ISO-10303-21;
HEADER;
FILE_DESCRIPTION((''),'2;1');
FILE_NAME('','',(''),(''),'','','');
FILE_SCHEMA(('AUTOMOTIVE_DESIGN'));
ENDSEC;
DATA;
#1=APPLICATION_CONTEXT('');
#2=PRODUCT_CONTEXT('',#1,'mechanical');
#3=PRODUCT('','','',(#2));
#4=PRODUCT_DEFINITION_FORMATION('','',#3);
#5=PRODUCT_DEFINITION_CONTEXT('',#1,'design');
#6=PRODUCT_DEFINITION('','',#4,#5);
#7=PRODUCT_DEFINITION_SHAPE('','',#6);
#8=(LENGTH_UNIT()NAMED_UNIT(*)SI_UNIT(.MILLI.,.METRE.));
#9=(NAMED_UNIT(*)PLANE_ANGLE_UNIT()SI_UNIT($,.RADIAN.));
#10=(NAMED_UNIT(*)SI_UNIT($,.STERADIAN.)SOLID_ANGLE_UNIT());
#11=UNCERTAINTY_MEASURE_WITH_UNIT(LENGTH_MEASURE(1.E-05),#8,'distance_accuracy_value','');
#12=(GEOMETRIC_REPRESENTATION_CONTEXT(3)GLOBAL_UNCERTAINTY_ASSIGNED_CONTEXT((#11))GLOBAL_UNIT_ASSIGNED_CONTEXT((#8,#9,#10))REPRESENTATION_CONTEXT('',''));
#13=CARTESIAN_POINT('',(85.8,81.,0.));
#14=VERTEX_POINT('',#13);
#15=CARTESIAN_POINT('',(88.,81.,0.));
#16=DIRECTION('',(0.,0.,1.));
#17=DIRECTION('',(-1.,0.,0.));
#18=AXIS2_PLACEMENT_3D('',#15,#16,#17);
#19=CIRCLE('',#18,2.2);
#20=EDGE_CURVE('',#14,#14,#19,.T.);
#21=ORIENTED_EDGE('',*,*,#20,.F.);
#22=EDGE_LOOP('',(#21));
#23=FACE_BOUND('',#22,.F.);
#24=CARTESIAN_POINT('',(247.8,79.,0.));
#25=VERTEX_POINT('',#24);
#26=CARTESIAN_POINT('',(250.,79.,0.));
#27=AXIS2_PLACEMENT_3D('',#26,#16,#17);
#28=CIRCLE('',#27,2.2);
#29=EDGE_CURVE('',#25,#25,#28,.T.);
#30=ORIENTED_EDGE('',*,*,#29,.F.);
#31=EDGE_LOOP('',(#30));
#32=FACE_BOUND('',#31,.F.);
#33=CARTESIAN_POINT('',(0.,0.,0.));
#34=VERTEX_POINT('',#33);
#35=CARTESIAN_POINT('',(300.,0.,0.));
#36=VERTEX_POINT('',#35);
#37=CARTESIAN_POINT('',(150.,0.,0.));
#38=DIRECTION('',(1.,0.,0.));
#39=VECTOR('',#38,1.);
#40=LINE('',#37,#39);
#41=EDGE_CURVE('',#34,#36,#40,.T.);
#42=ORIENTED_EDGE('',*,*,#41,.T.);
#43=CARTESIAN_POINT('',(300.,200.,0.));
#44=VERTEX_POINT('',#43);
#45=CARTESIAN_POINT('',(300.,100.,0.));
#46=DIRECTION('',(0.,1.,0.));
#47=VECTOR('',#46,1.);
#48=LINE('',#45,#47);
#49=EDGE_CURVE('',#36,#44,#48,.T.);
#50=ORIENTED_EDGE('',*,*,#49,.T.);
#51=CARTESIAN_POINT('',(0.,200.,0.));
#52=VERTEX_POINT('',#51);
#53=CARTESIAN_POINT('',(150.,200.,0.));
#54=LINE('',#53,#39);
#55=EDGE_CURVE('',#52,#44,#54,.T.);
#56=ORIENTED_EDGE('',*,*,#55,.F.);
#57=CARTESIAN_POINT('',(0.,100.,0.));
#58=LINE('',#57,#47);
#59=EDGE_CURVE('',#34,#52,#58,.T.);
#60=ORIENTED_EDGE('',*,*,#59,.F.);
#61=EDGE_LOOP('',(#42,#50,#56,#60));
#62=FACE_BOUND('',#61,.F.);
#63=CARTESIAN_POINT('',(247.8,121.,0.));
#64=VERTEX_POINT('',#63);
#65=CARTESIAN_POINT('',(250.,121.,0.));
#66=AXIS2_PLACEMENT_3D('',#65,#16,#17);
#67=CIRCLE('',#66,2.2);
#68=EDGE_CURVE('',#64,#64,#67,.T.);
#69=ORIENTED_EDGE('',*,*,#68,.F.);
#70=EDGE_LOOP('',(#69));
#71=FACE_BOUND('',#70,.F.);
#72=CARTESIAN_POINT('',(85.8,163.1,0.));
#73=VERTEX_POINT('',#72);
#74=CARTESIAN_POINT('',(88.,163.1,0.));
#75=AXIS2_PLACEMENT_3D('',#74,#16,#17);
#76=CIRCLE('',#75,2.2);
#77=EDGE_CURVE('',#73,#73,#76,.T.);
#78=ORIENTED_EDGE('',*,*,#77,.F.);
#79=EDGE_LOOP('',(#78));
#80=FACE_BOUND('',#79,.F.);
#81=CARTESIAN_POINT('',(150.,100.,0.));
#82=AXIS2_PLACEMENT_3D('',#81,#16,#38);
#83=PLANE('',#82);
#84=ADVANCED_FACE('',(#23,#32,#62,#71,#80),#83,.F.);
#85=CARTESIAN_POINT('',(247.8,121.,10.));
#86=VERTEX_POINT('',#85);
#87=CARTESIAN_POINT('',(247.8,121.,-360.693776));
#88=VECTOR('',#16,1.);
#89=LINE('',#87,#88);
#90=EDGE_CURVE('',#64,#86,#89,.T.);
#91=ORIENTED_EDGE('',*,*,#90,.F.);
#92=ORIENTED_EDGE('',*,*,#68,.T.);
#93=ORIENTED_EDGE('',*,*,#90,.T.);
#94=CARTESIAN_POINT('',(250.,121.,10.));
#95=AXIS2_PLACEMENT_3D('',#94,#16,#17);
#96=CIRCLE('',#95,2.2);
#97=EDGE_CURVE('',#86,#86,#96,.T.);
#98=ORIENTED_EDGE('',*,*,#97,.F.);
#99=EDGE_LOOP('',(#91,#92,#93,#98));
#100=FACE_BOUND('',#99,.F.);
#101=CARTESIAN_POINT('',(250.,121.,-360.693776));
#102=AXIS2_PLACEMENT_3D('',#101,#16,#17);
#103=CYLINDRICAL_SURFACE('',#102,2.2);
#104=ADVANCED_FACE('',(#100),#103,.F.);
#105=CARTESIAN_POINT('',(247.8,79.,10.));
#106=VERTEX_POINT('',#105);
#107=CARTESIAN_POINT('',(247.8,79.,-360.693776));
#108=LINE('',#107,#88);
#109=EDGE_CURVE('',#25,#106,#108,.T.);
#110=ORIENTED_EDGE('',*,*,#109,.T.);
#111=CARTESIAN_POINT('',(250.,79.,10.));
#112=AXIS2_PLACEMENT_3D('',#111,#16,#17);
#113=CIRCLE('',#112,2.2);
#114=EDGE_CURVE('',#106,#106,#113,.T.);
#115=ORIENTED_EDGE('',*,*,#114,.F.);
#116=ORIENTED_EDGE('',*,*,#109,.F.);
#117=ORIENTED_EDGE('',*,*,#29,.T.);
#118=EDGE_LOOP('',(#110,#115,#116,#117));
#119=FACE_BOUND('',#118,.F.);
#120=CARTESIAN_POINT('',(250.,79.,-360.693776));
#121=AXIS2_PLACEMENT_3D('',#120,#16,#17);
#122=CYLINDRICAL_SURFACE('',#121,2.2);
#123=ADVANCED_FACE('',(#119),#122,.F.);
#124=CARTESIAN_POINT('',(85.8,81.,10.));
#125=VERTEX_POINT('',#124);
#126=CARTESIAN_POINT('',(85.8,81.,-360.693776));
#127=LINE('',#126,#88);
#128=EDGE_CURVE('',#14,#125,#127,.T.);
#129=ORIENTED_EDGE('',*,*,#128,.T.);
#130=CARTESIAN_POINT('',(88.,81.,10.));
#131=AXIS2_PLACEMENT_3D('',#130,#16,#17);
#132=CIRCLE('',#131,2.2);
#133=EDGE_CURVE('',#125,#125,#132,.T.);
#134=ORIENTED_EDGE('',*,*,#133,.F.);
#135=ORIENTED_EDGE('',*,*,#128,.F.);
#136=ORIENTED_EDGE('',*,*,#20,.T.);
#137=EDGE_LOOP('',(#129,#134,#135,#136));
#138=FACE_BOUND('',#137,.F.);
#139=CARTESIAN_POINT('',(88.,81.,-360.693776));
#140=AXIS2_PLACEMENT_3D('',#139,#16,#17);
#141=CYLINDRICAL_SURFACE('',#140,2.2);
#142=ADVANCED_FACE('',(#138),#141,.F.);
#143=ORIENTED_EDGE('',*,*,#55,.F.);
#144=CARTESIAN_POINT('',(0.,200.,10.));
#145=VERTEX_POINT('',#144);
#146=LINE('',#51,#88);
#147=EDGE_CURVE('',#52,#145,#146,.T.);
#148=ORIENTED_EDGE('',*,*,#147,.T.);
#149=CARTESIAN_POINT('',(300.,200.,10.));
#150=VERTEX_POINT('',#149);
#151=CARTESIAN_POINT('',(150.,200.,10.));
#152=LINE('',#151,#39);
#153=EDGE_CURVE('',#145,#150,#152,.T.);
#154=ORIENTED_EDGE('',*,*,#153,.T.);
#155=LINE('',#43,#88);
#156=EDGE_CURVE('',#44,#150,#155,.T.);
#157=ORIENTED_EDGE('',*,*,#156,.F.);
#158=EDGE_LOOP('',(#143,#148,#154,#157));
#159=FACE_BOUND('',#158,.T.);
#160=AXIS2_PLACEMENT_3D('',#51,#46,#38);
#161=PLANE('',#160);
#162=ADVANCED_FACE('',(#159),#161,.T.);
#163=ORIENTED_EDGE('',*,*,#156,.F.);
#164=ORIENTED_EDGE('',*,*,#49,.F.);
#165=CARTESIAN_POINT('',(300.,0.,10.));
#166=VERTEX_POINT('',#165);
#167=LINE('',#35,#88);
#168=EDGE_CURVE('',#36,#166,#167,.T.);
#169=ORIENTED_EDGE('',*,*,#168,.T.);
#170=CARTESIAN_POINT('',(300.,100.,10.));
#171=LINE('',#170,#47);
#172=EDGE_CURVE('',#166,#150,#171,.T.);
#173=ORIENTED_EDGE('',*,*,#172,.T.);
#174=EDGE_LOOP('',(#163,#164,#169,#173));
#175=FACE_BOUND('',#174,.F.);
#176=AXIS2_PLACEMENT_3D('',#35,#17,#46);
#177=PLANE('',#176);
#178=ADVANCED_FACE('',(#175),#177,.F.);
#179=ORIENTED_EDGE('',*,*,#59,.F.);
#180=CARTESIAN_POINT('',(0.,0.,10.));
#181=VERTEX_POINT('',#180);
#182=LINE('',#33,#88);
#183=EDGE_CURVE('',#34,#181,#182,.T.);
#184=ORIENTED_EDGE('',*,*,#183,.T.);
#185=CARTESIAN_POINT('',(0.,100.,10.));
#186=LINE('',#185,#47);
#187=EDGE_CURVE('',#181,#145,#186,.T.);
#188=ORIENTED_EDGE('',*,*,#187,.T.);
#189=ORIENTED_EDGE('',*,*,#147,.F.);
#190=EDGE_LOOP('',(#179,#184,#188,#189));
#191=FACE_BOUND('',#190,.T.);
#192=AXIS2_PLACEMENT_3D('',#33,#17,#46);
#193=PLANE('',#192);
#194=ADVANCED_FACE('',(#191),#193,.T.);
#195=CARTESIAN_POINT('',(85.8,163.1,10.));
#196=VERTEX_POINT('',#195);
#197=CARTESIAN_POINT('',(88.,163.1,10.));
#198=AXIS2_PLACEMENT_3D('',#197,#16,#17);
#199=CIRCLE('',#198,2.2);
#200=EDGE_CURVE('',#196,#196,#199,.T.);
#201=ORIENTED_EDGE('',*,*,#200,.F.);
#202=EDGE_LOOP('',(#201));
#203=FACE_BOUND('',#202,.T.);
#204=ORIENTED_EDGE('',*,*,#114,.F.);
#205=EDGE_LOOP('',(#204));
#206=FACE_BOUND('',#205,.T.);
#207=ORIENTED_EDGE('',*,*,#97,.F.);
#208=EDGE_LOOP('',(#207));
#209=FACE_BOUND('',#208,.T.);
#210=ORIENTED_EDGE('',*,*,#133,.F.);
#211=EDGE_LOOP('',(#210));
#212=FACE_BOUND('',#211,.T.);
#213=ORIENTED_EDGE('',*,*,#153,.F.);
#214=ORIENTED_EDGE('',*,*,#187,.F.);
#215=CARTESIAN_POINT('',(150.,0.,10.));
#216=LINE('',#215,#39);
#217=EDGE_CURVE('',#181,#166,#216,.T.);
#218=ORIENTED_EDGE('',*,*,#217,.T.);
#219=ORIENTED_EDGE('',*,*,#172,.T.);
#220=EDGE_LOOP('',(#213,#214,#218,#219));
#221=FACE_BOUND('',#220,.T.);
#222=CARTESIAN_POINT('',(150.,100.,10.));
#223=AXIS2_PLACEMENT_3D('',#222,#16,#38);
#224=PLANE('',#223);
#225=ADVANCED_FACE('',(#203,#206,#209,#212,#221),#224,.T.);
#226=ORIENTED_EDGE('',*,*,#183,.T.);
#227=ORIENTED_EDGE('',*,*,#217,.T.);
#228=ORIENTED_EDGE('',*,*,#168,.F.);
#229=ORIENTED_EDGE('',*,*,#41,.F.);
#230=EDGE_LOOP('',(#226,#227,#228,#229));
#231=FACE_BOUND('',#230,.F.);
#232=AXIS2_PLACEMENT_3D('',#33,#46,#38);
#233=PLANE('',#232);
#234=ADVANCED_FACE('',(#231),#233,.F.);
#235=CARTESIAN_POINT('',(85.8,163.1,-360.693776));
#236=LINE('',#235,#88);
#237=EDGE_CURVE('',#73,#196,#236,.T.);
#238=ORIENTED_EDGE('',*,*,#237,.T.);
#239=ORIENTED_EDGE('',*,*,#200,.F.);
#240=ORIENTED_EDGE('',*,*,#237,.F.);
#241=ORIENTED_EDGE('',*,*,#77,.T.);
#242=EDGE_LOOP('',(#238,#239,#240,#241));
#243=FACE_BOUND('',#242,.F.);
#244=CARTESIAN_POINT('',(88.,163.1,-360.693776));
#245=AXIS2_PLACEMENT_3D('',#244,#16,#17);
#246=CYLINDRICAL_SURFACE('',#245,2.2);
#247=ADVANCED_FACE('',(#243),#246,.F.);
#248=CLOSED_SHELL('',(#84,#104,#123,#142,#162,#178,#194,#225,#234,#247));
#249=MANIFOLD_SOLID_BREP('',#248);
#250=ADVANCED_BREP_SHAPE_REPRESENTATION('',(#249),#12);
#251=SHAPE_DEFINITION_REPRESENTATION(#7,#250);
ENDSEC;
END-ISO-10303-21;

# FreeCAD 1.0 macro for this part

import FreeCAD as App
import Part
import Sketcher
from FreeCAD import Vector
Q = App.Units.Quantity

doc = App.newDocument("Part")
body = doc.addObject("PartDesign::Body", "Body")

sketch1 = doc.addObject("Sketcher::SketchObject", "Sketch")
body.addObject(sketch1)
sketch1.AttachmentSupport = (doc.XY_Plane, [""])
sketch1.MapMode = "FlatFace"
sketch1.addGeometry(Part.LineSegment(Vector(0, 200, 0), Vector(0, 0, 0)), False)
sketch1.addGeometry(Part.LineSegment(Vector(0, 0, 0), Vector(300, 0, 0)), False)
sketch1.addGeometry(Part.LineSegment(Vector(300, 0, 0), Vector(300, 200, 0)), False)
sketch1.addGeometry(Part.LineSegment(Vector(300, 200, 0), Vector(0, 200, 0)), False)
sketch1.addConstraint(Sketcher.Constraint("Coincident", 0, 2, 1, 1))
sketch1.addConstraint(Sketcher.Constraint("Coincident", 1, 2, 2, 1))
sketch1.addConstraint(Sketcher.Constraint("Coincident", 2, 2, 3, 1))
sketch1.addConstraint(Sketcher.Constraint("Coincident", 3, 2, 0, 1))
sketch1.addConstraint(Sketcher.Constraint("Vertical", 0))
sketch1.addConstraint(Sketcher.Constraint("Horizontal", 1))
sketch1.addConstraint(Sketcher.Constraint("Vertical", 2))
sketch1.addConstraint(Sketcher.Constraint("Horizontal", 3))
sketch1.addConstraint(Sketcher.Constraint("Coincident", 0, 2, -1, 1))
sketch1.addConstraint(Sketcher.Constraint("DistanceX", 1, 1, 1, 2, Q("300 mm")))
sketch1.addConstraint(Sketcher.Constraint("DistanceY", 0, 2, 0, 1, Q("200 mm")))
pad1 = doc.addObject("PartDesign::Pad", "Pad")
body.addObject(pad1)
pad1.Profile = sketch1
pad1.Length = 10

sketch2 = doc.addObject("Sketcher::SketchObject", "Sketch001")
body.addObject(sketch2)
sketch2.AttachmentSupport = (doc.XY_Plane, [""])
sketch2.MapMode = "FlatFace"
sketch2.addGeometry(Part.Circle(Vector(250, 121, 0), Vector(0, 0, 1), 2.2), False)
sketch2.addGeometry(Part.Circle(Vector(250, 79, 0), Vector(0, 0, 1), 2.2), False)
sketch2.addGeometry(Part.Circle(Vector(88, 81, 0), Vector(0, 0, 1), 2.2), False)
sketch2.addGeometry(Part.Circle(Vector(88, 163.1, 0), Vector(0, 0, 1), 2.2), False)
sketch2.addConstraint(Sketcher.Constraint("Equal", 0, 1))
sketch2.addConstraint(Sketcher.Constraint("Equal", 1, 2))
sketch2.addConstraint(Sketcher.Constraint("Equal", 2, 3))
sketch2.addConstraint(Sketcher.Constraint("Vertical", 0, 3, 1, 3))
sketch2.addConstraint(Sketcher.Constraint("Vertical", 2, 3, 3, 3))
sketch2.addConstraint(Sketcher.Constraint("Diameter", 0, Q("4.4 mm")))
sketch2.addConstraint(Sketcher.Constraint("DistanceX", -1, 1, 0, 3, Q("250 mm")))
sketch2.addConstraint(Sketcher.Constraint("DistanceY", -1, 1, 0, 3, Q("121 mm")))
sketch2.addConstraint(Sketcher.Constraint("DistanceY", -1, 1, 1, 3, Q("79 mm")))
sketch2.addConstraint(Sketcher.Constraint("DistanceX", -1, 1, 2, 3, Q("88 mm")))
sketch2.addConstraint(Sketcher.Constraint("DistanceY", -1, 1, 2, 3, Q("81 mm")))
sketch2.addConstraint(Sketcher.Constraint("DistanceY", -1, 1, 3, 3, Q("163.1 mm")))
doc.recompute()
hole = doc.addObject("PartDesign::Hole", "Hole")
body.addObject(hole)
hole.Profile = sketch2
hole.ThreadType = "None"
hole.Diameter = 4.4
hole.DepthType = "ThroughAll"
hole.Reversed = True

doc.recompute()
